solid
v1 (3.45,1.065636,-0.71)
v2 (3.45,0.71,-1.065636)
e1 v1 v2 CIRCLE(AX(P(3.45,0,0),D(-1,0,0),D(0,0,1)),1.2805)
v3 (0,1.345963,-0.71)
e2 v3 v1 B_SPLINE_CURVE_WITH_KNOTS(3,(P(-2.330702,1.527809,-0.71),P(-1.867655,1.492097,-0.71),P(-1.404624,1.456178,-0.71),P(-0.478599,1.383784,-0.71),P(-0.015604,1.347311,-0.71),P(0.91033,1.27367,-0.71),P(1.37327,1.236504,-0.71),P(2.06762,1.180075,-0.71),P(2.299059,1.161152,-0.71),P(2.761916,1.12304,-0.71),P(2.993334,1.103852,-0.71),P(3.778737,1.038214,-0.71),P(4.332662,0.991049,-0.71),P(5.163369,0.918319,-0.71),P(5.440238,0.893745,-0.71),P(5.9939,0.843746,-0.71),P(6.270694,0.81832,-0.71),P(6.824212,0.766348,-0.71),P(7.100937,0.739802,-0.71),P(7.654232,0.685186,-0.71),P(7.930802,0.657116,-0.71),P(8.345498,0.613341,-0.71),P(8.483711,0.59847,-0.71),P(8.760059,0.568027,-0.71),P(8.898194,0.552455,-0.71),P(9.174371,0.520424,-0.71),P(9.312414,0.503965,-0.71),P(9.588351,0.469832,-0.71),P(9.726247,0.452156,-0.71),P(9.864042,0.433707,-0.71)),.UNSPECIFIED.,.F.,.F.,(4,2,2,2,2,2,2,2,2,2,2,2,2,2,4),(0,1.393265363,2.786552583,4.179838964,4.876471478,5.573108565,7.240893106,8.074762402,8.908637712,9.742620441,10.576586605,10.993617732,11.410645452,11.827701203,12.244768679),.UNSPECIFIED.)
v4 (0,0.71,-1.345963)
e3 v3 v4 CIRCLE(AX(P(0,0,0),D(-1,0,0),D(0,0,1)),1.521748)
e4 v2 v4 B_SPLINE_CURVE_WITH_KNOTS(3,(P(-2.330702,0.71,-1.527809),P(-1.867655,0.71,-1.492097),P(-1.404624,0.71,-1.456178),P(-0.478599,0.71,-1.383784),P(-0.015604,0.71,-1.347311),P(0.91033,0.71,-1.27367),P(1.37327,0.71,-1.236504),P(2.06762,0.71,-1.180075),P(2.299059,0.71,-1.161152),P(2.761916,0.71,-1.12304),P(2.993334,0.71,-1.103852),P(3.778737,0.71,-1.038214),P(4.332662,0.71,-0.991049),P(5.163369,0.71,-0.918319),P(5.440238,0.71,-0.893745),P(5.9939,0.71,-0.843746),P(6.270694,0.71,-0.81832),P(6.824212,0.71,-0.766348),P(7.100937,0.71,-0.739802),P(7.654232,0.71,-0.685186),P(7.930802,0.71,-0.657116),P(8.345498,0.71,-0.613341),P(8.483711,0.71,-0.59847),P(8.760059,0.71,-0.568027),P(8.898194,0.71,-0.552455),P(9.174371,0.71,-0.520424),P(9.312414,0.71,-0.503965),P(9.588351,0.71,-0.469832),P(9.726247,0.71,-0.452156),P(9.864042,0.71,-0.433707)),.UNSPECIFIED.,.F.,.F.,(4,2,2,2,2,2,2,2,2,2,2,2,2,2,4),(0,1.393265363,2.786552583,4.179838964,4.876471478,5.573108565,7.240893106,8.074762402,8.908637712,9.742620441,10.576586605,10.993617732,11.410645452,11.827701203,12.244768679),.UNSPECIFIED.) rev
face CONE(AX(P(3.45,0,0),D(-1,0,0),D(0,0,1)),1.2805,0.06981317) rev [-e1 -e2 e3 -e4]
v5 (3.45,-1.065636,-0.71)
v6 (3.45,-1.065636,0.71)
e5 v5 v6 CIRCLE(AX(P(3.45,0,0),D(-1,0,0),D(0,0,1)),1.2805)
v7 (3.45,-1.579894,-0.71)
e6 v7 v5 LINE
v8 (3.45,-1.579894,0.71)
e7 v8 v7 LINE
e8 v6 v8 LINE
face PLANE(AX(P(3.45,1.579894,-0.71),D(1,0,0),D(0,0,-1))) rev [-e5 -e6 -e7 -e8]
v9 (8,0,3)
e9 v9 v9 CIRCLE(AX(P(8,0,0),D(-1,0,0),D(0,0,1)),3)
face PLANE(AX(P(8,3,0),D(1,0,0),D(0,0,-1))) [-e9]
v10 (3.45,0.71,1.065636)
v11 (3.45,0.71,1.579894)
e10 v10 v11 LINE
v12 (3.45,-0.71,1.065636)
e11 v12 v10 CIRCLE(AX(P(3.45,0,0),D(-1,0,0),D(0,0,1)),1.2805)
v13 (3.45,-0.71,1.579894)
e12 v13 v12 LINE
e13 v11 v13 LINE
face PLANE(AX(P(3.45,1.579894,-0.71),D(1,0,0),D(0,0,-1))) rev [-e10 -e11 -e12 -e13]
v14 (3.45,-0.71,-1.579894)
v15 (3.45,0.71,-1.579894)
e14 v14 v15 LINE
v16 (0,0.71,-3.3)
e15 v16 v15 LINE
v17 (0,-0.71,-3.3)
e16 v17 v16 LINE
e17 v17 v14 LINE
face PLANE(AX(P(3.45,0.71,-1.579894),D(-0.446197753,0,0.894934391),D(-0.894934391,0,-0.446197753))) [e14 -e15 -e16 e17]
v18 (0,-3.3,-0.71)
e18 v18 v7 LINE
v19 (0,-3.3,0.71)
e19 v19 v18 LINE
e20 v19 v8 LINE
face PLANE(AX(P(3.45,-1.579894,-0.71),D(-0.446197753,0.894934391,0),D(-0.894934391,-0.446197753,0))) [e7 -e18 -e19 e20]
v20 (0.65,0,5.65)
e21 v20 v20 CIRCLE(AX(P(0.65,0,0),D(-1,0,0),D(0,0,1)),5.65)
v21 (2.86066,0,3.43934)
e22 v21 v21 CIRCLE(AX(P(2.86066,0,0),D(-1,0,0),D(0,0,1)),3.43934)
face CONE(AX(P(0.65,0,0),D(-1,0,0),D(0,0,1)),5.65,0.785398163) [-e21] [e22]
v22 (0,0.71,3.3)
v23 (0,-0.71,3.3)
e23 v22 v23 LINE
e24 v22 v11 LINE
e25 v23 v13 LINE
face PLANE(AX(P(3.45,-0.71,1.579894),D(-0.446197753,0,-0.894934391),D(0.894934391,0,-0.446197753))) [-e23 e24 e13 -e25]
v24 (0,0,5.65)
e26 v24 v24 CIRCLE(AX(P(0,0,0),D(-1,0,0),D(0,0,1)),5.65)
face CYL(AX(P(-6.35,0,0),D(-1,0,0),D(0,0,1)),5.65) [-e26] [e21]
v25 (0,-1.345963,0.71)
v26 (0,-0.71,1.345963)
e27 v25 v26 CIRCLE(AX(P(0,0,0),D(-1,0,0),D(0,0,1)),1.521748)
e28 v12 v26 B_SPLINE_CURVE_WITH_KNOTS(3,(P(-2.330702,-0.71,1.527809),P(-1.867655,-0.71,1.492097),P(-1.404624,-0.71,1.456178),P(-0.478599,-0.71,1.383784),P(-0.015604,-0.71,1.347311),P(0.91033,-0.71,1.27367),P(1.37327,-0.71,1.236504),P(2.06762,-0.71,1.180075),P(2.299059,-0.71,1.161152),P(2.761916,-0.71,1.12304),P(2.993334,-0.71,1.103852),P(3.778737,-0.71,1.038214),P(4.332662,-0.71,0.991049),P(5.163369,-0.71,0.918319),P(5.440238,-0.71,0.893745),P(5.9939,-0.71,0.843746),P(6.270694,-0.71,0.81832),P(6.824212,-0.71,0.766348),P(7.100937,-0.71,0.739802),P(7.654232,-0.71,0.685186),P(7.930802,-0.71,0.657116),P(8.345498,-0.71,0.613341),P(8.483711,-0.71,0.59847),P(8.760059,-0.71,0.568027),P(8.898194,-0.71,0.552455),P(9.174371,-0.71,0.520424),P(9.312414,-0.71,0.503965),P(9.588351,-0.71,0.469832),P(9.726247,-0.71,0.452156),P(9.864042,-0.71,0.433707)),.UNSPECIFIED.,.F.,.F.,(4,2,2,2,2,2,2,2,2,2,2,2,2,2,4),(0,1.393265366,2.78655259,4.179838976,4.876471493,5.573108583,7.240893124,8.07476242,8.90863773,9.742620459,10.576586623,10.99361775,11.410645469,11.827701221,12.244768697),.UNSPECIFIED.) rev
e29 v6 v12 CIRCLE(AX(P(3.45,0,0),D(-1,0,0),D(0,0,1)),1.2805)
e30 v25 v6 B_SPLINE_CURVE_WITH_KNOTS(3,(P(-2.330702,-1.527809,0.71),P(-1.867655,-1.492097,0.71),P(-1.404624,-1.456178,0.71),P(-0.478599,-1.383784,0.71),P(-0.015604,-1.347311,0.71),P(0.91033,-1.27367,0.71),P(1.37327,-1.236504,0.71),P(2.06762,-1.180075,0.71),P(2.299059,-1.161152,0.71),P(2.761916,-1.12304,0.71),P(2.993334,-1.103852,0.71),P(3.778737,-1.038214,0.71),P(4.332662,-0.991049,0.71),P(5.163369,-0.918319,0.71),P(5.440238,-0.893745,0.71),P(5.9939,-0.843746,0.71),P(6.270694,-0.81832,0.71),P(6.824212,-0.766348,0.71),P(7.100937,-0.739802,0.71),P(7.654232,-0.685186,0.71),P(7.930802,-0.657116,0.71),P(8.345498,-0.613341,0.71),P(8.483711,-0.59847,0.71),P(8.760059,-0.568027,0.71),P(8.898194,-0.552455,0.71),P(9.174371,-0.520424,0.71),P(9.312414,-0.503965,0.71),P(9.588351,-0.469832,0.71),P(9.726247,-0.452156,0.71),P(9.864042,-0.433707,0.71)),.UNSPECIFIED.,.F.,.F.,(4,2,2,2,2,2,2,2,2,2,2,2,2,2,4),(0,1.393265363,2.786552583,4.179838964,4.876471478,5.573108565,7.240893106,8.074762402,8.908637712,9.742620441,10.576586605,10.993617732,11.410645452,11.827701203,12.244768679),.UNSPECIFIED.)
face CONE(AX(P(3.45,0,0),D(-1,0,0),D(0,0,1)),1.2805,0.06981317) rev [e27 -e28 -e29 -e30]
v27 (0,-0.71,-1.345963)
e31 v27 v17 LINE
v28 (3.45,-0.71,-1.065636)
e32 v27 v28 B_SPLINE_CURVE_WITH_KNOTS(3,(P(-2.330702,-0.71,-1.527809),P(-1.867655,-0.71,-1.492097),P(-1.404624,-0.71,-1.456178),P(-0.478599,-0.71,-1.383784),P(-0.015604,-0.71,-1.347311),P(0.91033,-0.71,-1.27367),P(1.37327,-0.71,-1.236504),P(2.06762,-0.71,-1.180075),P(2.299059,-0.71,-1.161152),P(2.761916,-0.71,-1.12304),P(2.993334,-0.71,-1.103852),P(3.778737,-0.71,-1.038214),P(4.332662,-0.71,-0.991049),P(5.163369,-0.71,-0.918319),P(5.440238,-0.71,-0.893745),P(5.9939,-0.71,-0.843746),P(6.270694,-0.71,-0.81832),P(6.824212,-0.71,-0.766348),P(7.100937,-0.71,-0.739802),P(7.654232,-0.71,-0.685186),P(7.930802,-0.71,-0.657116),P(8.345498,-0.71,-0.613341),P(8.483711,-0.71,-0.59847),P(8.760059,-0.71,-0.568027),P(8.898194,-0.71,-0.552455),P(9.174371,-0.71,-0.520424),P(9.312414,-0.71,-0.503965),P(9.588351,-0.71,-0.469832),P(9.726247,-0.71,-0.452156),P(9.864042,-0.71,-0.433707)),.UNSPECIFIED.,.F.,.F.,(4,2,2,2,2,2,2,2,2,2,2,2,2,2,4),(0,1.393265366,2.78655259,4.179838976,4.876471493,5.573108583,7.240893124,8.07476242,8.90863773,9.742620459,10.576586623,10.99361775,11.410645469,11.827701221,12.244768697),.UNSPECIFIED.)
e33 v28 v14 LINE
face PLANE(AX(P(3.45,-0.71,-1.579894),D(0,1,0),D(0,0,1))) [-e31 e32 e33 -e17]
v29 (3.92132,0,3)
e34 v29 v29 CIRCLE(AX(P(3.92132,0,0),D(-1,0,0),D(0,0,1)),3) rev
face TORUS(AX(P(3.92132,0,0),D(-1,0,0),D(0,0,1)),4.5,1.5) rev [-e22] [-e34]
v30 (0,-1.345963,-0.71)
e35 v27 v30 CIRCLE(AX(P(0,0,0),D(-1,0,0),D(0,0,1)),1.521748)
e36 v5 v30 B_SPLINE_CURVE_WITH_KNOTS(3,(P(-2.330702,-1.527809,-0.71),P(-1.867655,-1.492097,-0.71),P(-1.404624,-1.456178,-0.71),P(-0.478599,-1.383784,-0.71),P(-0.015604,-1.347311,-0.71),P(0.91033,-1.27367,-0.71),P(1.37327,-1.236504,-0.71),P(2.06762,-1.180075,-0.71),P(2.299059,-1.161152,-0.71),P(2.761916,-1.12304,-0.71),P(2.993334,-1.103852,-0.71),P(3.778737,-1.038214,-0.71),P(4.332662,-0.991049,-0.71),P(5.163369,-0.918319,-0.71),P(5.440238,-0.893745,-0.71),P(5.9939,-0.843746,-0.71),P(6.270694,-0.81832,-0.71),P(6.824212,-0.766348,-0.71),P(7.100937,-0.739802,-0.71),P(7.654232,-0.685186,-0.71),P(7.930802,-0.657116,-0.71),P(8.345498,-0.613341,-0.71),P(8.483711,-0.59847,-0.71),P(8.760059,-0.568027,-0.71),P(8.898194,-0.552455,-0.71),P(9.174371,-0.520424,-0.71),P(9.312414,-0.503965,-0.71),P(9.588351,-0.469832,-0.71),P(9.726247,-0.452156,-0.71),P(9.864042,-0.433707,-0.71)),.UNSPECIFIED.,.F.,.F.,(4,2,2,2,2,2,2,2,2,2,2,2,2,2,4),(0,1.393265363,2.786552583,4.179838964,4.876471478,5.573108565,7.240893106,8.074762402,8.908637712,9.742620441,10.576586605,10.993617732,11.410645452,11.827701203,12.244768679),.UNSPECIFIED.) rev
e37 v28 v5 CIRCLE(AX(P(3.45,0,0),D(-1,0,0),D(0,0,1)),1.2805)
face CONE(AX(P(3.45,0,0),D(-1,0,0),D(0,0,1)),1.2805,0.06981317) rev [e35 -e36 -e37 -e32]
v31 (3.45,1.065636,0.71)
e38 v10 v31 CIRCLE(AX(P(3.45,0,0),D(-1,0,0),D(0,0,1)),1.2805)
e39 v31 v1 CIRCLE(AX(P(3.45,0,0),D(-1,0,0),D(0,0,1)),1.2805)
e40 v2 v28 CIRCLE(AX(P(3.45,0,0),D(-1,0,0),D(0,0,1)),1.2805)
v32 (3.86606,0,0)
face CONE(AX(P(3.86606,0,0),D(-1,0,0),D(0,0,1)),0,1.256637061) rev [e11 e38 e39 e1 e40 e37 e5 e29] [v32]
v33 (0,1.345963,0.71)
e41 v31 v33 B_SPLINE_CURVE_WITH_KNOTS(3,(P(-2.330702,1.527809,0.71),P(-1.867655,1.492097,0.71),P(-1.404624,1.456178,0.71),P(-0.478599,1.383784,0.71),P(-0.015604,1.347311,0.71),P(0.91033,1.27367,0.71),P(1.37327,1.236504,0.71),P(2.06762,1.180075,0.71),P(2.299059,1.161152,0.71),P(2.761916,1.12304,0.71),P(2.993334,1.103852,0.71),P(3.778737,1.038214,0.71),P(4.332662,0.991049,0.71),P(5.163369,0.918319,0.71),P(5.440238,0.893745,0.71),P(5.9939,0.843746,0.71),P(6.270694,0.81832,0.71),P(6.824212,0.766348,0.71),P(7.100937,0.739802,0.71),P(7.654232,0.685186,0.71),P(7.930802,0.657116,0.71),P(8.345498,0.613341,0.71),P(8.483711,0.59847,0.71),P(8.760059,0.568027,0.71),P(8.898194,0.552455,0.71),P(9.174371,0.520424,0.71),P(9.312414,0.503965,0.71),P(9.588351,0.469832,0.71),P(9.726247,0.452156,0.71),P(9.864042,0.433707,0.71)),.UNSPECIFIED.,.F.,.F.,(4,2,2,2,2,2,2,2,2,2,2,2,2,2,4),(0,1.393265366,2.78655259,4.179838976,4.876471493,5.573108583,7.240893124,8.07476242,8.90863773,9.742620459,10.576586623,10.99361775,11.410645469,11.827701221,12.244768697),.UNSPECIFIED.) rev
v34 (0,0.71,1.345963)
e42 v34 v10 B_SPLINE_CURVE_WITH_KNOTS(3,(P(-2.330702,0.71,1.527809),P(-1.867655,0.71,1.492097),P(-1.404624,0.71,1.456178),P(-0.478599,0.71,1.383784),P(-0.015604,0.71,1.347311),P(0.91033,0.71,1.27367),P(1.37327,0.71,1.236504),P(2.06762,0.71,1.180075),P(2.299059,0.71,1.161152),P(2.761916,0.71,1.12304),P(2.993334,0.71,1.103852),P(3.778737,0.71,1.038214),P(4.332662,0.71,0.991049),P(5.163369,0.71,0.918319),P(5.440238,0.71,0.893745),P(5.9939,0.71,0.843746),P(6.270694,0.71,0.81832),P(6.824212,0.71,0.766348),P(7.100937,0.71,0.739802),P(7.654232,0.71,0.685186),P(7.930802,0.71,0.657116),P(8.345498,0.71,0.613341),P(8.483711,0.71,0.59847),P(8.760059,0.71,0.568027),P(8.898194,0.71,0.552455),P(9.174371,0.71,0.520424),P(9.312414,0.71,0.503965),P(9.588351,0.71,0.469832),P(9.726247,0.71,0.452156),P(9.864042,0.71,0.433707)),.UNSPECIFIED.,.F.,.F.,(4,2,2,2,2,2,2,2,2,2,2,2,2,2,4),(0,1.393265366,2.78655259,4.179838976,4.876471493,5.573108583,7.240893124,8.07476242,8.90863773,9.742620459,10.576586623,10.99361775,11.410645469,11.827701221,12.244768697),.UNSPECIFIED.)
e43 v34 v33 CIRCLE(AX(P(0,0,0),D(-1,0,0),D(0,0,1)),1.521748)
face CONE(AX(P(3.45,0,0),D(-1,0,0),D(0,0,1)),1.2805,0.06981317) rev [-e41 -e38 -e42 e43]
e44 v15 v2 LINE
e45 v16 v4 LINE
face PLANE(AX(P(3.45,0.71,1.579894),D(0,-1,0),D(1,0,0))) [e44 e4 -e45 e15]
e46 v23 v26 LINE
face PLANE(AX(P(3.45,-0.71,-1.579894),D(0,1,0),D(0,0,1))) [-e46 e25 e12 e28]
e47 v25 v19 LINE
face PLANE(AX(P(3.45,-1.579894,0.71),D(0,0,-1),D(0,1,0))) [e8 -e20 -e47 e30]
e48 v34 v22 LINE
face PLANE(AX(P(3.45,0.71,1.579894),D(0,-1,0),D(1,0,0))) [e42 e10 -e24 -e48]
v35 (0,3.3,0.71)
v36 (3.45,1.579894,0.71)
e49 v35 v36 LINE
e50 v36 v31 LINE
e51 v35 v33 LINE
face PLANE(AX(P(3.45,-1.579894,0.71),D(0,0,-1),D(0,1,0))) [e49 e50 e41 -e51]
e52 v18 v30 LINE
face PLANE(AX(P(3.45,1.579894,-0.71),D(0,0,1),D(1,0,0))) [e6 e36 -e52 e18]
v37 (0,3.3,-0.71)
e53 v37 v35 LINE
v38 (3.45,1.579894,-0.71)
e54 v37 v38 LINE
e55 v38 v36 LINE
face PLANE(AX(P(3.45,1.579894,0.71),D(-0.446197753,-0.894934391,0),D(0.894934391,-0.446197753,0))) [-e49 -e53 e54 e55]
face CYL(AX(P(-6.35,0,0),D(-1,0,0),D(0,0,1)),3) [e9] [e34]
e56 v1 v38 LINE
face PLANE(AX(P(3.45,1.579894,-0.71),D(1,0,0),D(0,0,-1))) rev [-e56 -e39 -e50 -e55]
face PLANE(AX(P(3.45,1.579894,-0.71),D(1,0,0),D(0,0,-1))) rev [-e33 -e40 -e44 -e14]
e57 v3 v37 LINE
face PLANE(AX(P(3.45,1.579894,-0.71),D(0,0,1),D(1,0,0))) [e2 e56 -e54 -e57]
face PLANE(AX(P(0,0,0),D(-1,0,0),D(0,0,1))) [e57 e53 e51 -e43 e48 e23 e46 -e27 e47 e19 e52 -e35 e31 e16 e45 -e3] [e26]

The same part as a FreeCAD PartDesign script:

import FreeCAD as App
import Part
import Sketcher
from FreeCAD import Vector
Q = App.Units.Quantity


def edges_at(feature, points):
    """Names of the edges that pass closest to the given points."""
    edges = feature.Shape.Edges
    near = lambda p: min(range(len(edges)), key=lambda i: edges[i].distToShape(Part.Vertex(*p))[0])
    return sorted({f"Edge{near(p) + 1}" for p in points})

doc = App.newDocument("Part")
body = doc.addObject("PartDesign::Body", "Body")

# Sketch on XY plane
sketch1 = doc.addObject("Sketcher::SketchObject", "Sketch")
body.addObject(sketch1)
sketch1.AttachmentSupport = (doc.XY_Plane, [""])
sketch1.MapMode = "FlatFace"
sketch1.addGeometry(Part.LineSegment(Vector(0, 5.7, 0), Vector(0, 0, 0)), False)
sketch1.addGeometry(Part.LineSegment(Vector(0, 0, 0), Vector(8, 0, 0)), False)
sketch1.addGeometry(Part.LineSegment(Vector(8, 0, 0), Vector(8, 3, 0)), False)
sketch1.addGeometry(Part.LineSegment(Vector(8, 3, 0), Vector(3.3, 3, 0)), False)
sketch1.addGeometry(Part.LineSegment(Vector(3.3, 3, 0), Vector(0.7, 5.7, 0)), False)
sketch1.addGeometry(Part.LineSegment(Vector(0.7, 5.7, 0), Vector(0, 5.7, 0)), False)
sketch1.addConstraint(Sketcher.Constraint("Coincident", 0, 2, 1, 1))
sketch1.addConstraint(Sketcher.Constraint("Coincident", 1, 2, 2, 1))
sketch1.addConstraint(Sketcher.Constraint("Coincident", 2, 2, 3, 1))
sketch1.addConstraint(Sketcher.Constraint("Coincident", 3, 2, 4, 1))
sketch1.addConstraint(Sketcher.Constraint("Coincident", 4, 2, 5, 1))
sketch1.addConstraint(Sketcher.Constraint("Coincident", 5, 2, 0, 1))
sketch1.addConstraint(Sketcher.Constraint("Vertical", 0))
sketch1.addConstraint(Sketcher.Constraint("Horizontal", 1))
sketch1.addConstraint(Sketcher.Constraint("Vertical", 2))
sketch1.addConstraint(Sketcher.Constraint("Horizontal", 3))
sketch1.addConstraint(Sketcher.Constraint("Horizontal", 5))
sketch1.addConstraint(Sketcher.Constraint("Coincident", 0, 2, -1, 1))
sketch1.addConstraint(Sketcher.Constraint("DistanceX", 1, 1, 1, 2, Q("8 mm")))
sketch1.addConstraint(Sketcher.Constraint("DistanceY", 2, 1, 2, 2, Q("3 mm")))
sketch1.addConstraint(Sketcher.Constraint("Angle", 4, Q("135 deg")))
sketch1.addConstraint(Sketcher.Constraint("DistanceX", 3, 2, 3, 1, Q("4.7 mm")))
sketch1.addConstraint(Sketcher.Constraint("DistanceX", 5, 2, 5, 1, Q("0.65 mm")))
revolution = doc.addObject("PartDesign::Revolution", "Revolution")
body.addObject(revolution)
revolution.Profile = sketch1
revolution.ReferenceAxis = (sketch1, ["H_Axis"])
revolution.Angle = 360
doc.recompute()

fillet = doc.addObject("PartDesign::Fillet", "Fillet")
body.addObject(fillet)
fillet.Base = (revolution, edges_at(revolution, [(3.3, -3, 0)]))
fillet.Radius = 1.5

# Sketch on YZ plane
sketch2 = doc.addObject("Sketcher::SketchObject", "Sketch001")
body.addObject(sketch2)
sketch2.AttachmentSupport = (doc.YZ_Plane, [""])
sketch2.MapMode = "FlatFace"
sketch2.addGeometry(Part.LineSegment(Vector(3.3, -0.7, 0), Vector(-3.3, -0.7, 0)), False)
sketch2.addGeometry(Part.LineSegment(Vector(-3.3, -0.7, 0), Vector(-3.3, 0.7, 0)), False)
sketch2.addGeometry(Part.LineSegment(Vector(-3.3, 0.7, 0), Vector(3.3, 0.7, 0)), False)
sketch2.addGeometry(Part.LineSegment(Vector(3.3, 0.7, 0), Vector(3.3, -0.7, 0)), False)
sketch2.addConstraint(Sketcher.Constraint("Coincident", 0, 2, 1, 1))
sketch2.addConstraint(Sketcher.Constraint("Coincident", 1, 2, 2, 1))
sketch2.addConstraint(Sketcher.Constraint("Coincident", 2, 2, 3, 1))
sketch2.addConstraint(Sketcher.Constraint("Coincident", 3, 2, 0, 1))
sketch2.addConstraint(Sketcher.Constraint("Horizontal", 0))
sketch2.addConstraint(Sketcher.Constraint("Vertical", 1))
sketch2.addConstraint(Sketcher.Constraint("Horizontal", 2))
sketch2.addConstraint(Sketcher.Constraint("Vertical", 3))
sketch2.addConstraint(Sketcher.Constraint("Symmetric", 0, 2, 2, 2, -1, 1))
sketch2.addConstraint(Sketcher.Constraint("DistanceX", 0, 2, 0, 1, Q("6.6 mm")))
sketch2.addConstraint(Sketcher.Constraint("DistanceY", 1, 1, 1, 2, Q("1.42 mm")))

# Sketch on YZ plane
sketch3 = doc.addObject("Sketcher::SketchObject", "Sketch002")
body.addObject(sketch3)
sketch3.AttachmentSupport = (doc.YZ_Plane, [""])
sketch3.MapMode = "FlatFace"
sketch3.AttachmentOffset = App.Placement(Vector(0, 0, 3.45), App.Rotation())
sketch3.addGeometry(Part.LineSegment(Vector(1.6, -0.7, 0), Vector(-1.6, -0.7, 0)), False)
sketch3.addGeometry(Part.LineSegment(Vector(-1.6, -0.7, 0), Vector(-1.6, 0.7, 0)), False)
sketch3.addGeometry(Part.LineSegment(Vector(-1.6, 0.7, 0), Vector(1.6, 0.7, 0)), False)
sketch3.addGeometry(Part.LineSegment(Vector(1.6, 0.7, 0), Vector(1.6, -0.7, 0)), False)
sketch3.addConstraint(Sketcher.Constraint("Coincident", 0, 2, 1, 1))
sketch3.addConstraint(Sketcher.Constraint("Coincident", 1, 2, 2, 1))
sketch3.addConstraint(Sketcher.Constraint("Coincident", 2, 2, 3, 1))
sketch3.addConstraint(Sketcher.Constraint("Coincident", 3, 2, 0, 1))
sketch3.addConstraint(Sketcher.Constraint("Horizontal", 0))
sketch3.addConstraint(Sketcher.Constraint("Vertical", 1))
sketch3.addConstraint(Sketcher.Constraint("Horizontal", 2))
sketch3.addConstraint(Sketcher.Constraint("Vertical", 3))
sketch3.addConstraint(Sketcher.Constraint("Symmetric", 0, 2, 2, 2, -1, 1))
sketch3.addConstraint(Sketcher.Constraint("DistanceY", 1, 1, 1, 2, Q("1.42 mm")))
sketch3.addConstraint(Sketcher.Constraint("DistanceX", 0, 2, 0, 1, Q("3.159787 mm")))

subtractiveloft = doc.addObject("PartDesign::SubtractiveLoft", "SubtractiveLoft")
body.addObject(subtractiveloft)
subtractiveloft.Profile = sketch2
subtractiveloft.Sections = [sketch3]
doc.recompute()

polarpattern = doc.addObject("PartDesign::PolarPattern", "PolarPattern")
body.addObject(polarpattern)
polarpattern.Originals = [subtractiveloft]
polarpattern.Axis = (doc.X_Axis, [""])
polarpattern.Angle = 90
polarpattern.Occurrences = 2
body.Tip = polarpattern

# Sketch on XY plane
sketch4 = doc.addObject("Sketcher::SketchObject", "Sketch003")
body.addObject(sketch4)
sketch4.AttachmentSupport = (doc.XY_Plane, [""])
sketch4.MapMode = "FlatFace"
sketch4.addGeometry(Part.LineSegment(Vector(0, 1.5, 0), Vector(0, 0, 0)), False)
sketch4.addGeometry(Part.LineSegment(Vector(0, 0, 0), Vector(3.9, 0, 0)), False)
sketch4.addGeometry(Part.LineSegment(Vector(3.9, 0, 0), Vector(3.5, 1.3, 0)), False)
sketch4.addGeometry(Part.LineSegment(Vector(3.5, 1.3, 0), Vector(0, 1.5, 0)), False)
sketch4.addConstraint(Sketcher.Constraint("Coincident", 0, 2, 1, 1))
sketch4.addConstraint(Sketcher.Constraint("Coincident", 1, 2, 2, 1))
sketch4.addConstraint(Sketcher.Constraint("Coincident", 2, 2, 3, 1))
sketch4.addConstraint(Sketcher.Constraint("Coincident", 3, 2, 0, 1))
sketch4.addConstraint(Sketcher.Constraint("Vertical", 0))
sketch4.addConstraint(Sketcher.Constraint("Horizontal", 1))
sketch4.addConstraint(Sketcher.Constraint("Coincident", 0, 2, -1, 1))
sketch4.addConstraint(Sketcher.Constraint("Angle", 2, Q("108 deg")))
sketch4.addConstraint(Sketcher.Constraint("Angle", 3, Q("176 deg")))
sketch4.addConstraint(Sketcher.Constraint("DistanceX", -1, 1, 2, 2, Q("3.45 mm")))
sketch4.addConstraint(Sketcher.Constraint("DistanceX", 1, 1, 1, 2, Q("3.86606 mm")))
groove = doc.addObject("PartDesign::Groove", "Groove")
body.addObject(groove)
groove.Profile = sketch4
groove.ReferenceAxis = (sketch4, ["H_Axis"])
groove.Angle = 360

doc.recompute()
